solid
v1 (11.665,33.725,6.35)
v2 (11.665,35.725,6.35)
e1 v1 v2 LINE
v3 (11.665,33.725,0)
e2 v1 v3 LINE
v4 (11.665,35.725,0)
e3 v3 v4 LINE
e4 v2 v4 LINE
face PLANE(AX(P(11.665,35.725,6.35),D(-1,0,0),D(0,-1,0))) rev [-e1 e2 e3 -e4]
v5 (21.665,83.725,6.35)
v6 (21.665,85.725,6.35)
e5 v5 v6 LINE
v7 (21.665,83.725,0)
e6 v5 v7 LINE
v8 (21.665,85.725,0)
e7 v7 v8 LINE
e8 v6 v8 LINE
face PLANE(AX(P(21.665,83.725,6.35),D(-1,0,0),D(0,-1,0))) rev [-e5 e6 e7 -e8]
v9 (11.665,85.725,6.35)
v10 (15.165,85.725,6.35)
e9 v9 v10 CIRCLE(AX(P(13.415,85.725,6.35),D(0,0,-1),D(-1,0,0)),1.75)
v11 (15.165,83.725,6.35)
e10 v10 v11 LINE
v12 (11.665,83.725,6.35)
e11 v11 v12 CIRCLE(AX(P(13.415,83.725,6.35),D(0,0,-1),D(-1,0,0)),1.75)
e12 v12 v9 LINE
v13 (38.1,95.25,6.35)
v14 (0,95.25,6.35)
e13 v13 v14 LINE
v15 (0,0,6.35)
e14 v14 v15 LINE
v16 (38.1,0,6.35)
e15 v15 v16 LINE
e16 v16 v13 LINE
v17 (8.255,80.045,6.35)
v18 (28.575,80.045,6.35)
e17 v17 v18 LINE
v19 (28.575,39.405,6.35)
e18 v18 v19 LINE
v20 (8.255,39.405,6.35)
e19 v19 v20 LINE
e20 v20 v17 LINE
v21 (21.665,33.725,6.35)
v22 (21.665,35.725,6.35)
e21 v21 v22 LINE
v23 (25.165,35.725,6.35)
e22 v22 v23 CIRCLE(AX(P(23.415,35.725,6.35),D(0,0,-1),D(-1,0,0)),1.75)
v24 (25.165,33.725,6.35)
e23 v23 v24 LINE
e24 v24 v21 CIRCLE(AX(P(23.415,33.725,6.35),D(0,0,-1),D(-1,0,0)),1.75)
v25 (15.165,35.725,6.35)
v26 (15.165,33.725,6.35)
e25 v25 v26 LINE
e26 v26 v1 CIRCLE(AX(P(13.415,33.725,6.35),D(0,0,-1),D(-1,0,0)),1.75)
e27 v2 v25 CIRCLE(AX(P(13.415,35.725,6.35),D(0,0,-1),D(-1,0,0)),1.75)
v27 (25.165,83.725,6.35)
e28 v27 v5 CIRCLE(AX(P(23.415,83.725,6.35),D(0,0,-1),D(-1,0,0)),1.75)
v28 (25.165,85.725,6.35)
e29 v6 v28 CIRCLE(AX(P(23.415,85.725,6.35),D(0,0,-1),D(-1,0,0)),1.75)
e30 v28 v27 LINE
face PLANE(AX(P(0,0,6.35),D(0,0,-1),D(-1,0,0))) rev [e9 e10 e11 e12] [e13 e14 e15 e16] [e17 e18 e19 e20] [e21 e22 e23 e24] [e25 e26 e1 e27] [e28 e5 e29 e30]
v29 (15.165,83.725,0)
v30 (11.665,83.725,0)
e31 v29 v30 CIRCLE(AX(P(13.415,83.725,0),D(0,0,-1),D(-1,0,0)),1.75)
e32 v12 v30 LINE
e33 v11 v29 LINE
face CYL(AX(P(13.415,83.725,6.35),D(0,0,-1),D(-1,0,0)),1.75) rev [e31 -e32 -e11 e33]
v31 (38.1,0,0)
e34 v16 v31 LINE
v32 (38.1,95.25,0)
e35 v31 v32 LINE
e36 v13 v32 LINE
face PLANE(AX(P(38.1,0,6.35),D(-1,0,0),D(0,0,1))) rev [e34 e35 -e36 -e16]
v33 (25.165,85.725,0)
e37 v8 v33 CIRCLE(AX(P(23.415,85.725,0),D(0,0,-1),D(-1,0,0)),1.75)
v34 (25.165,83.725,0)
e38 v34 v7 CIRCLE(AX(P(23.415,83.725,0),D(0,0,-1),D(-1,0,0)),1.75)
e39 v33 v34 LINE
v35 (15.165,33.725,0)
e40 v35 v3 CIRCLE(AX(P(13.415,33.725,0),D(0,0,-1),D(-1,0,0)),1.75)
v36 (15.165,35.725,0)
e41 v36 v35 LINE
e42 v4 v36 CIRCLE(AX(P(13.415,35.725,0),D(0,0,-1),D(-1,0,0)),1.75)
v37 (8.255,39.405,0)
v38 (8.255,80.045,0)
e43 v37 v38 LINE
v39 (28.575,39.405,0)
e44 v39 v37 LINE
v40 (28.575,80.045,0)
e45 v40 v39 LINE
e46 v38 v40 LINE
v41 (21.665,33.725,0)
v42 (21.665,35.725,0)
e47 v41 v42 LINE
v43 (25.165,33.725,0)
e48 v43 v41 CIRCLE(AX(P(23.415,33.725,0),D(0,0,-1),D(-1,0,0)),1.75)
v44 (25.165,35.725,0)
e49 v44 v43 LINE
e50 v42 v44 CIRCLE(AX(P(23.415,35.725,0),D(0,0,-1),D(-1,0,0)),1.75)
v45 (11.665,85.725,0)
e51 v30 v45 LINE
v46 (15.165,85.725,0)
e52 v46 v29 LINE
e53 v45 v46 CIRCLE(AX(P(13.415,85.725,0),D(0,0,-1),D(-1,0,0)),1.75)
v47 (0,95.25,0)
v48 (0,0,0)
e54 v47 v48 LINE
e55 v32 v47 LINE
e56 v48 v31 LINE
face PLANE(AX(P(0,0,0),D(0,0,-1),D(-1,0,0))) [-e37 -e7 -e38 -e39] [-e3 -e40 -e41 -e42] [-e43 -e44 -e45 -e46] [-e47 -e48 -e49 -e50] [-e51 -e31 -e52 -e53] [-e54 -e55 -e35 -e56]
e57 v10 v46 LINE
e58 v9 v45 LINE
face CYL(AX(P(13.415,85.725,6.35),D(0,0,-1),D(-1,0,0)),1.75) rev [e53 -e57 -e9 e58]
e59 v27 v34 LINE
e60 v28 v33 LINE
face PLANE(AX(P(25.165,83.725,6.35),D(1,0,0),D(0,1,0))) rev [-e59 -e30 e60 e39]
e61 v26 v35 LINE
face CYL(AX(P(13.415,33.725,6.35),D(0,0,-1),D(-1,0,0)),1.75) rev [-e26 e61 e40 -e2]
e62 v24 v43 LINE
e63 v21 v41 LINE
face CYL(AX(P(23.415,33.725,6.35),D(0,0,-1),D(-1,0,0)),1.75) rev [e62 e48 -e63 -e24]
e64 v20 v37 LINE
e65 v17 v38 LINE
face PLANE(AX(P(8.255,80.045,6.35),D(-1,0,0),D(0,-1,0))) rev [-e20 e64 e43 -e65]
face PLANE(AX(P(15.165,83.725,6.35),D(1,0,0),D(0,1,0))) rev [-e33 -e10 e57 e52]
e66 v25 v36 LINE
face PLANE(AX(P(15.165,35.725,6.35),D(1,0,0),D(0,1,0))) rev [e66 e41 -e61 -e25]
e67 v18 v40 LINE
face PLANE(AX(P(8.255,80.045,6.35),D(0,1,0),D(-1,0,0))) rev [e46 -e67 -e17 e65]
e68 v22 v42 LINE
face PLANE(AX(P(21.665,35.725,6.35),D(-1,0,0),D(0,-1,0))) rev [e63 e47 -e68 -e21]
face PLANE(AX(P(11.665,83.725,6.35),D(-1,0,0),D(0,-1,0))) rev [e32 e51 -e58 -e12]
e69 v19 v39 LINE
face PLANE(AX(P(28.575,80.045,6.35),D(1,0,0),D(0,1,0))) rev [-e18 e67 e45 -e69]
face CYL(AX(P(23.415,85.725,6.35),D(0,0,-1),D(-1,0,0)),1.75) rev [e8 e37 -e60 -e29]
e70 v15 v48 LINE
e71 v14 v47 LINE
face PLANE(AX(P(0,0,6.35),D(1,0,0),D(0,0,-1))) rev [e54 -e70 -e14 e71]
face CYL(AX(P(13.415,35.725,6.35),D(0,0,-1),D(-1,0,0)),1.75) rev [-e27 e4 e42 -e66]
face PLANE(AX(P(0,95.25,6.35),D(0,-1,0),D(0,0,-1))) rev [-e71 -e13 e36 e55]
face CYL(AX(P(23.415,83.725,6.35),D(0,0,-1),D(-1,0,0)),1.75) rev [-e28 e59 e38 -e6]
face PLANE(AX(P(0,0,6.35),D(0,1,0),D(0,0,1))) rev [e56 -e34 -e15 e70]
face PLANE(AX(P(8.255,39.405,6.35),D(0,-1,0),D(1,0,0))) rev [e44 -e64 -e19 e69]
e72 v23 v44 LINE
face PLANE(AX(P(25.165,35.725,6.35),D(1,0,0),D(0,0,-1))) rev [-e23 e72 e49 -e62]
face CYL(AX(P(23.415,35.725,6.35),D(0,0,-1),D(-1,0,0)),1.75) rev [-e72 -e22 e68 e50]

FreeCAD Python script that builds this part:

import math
import FreeCAD as App
import Part
import Sketcher

V = App.Vector
Q = App.Units.Quantity

doc = App.newDocument("Part")
params = doc.addObject("Spreadsheet::Sheet", "Params")
for row, (alias, value) in enumerate([
    ("sketch1_width", "1.5 in"),
    ("sketch1_height", "3.75 in"),
    ("pad1_length", "0.25 in"),
    ("sketch2_width", "0.8 in"),
    ("sketch2_height", "1.6 in"),
    ("pocket1_length", "0.25 in"),
], start=1):
    params.set(f"A{row}", alias)
    params.set(f"B{row}", "=" + value)
    params.setAlias(f"B{row}", alias)

body = doc.addObject("PartDesign::Body", "Body")

sketch1 = body.newObject("Sketcher::SketchObject", "Sketch")
sketch1.AttachmentSupport = (doc.getObject("XY_Plane"), [""])
sketch1.MapMode = "FlatFace"
sketch1.addGeometry([
    Part.LineSegment(V(0, 95, 0), V(0, 0, 0)),
    Part.LineSegment(V(0, 0, 0), V(38, 0, 0)),
    Part.LineSegment(V(38, 0, 0), V(38, 95, 0)),
    Part.LineSegment(V(38, 95, 0), V(0, 95, 0)),
], False)
sketch1.addConstraint([
    Sketcher.Constraint("Coincident", 0, 2, 1, 1),
    Sketcher.Constraint("Coincident", 1, 2, 2, 1),
    Sketcher.Constraint("Coincident", 2, 2, 3, 1),
    Sketcher.Constraint("Coincident", 3, 2, 0, 1),
    Sketcher.Constraint("Vertical", 0),
    Sketcher.Constraint("Horizontal", 1),
    Sketcher.Constraint("Vertical", 2),
    Sketcher.Constraint("Horizontal", 3),
    Sketcher.Constraint("Coincident", 0, 2, -1, 1),
    Sketcher.Constraint("DistanceX", 1, 1, 1, 2, Q("1.5 in")),
    Sketcher.Constraint("DistanceY", 0, 2, 0, 1, Q("3.75 in")),
])
sketch1.setExpression("Constraints[9]", "Params.sketch1_width")
sketch1.setExpression("Constraints[10]", "Params.sketch1_height")
pad1 = body.newObject("PartDesign::Pad", "Pad")
pad1.Profile = sketch1
pad1.setExpression("Length", "Params.pad1_length")

sketch2 = body.newObject("Sketcher::SketchObject", "Sketch001")
sketch2.AttachmentSupport = (doc.getObject("XY_Plane"), [""])
sketch2.MapMode = "FlatFace"
sketch2.addGeometry([
    Part.LineSegment(V(28.6, 80, 0), V(28.6, 39.4, 0)),
    Part.LineSegment(V(28.6, 39.4, 0), V(8.3, 39.4, 0)),
    Part.LineSegment(V(8.3, 39.4, 0), V(8.3, 80, 0)),
    Part.LineSegment(V(8.3, 80, 0), V(28.6, 80, 0)),
    Part.LineSegment(V(25.2, 85.7, 0), V(25.2, 83.7, 0)),
    Part.ArcOfCircle(Part.Circle(V(23.4, 83.7, 0), V(0, 0, 1), 1.8), math.radians(180), math.radians(360)),
    Part.LineSegment(V(21.7, 83.7, 0), V(21.7, 85.7, 0)),
    Part.ArcOfCircle(Part.Circle(V(23.4, 85.7, 0), V(0, 0, 1), 1.8), math.radians(0), math.radians(180)),
    Part.LineSegment(V(15.2, 85.7, 0), V(15.2, 83.7, 0)),
    Part.ArcOfCircle(Part.Circle(V(13.4, 83.7, 0), V(0, 0, 1), 1.8), math.radians(180), math.radians(360)),
    Part.LineSegment(V(11.7, 83.7, 0), V(11.7, 85.7, 0)),
    Part.ArcOfCircle(Part.Circle(V(13.4, 85.7, 0), V(0, 0, 1), 1.8), math.radians(0), math.radians(180)),
    Part.LineSegment(V(21.7, 33.7, 0), V(21.7, 35.7, 0)),
    Part.ArcOfCircle(Part.Circle(V(23.4, 35.7, 0), V(0, 0, 1), 1.8), math.radians(0), math.radians(180)),
    Part.LineSegment(V(25.2, 35.7, 0), V(25.2, 33.7, 0)),
    Part.ArcOfCircle(Part.Circle(V(23.4, 33.7, 0), V(0, 0, 1), 1.8), math.radians(180), math.radians(360)),
    Part.LineSegment(V(11.7, 33.7, 0), V(11.7, 35.7, 0)),
    Part.ArcOfCircle(Part.Circle(V(13.4, 35.7, 0), V(0, 0, 1), 1.8), math.radians(0), math.radians(180)),
    Part.LineSegment(V(15.2, 35.7, 0), V(15.2, 33.7, 0)),
    Part.ArcOfCircle(Part.Circle(V(13.4, 33.7, 0), V(0, 0, 1), 1.8), math.radians(180), math.radians(360)),
], False)
sketch2.addConstraint([
    Sketcher.Constraint("Coincident", 0, 2, 1, 1),
    Sketcher.Constraint("Coincident", 1, 2, 2, 1),
    Sketcher.Constraint("Coincident", 2, 2, 3, 1),
    Sketcher.Constraint("Coincident", 3, 2, 0, 1),
    Sketcher.Constraint("Tangent", 4, 2, 5, 2),
    Sketcher.Constraint("Tangent", 5, 1, 6, 1),
    Sketcher.Constraint("Tangent", 6, 2, 7, 2),
    Sketcher.Constraint("Tangent", 7, 1, 4, 1),
    Sketcher.Constraint("Tangent", 8, 2, 9, 2),
    Sketcher.Constraint("Tangent", 9, 1, 10, 1),
    Sketcher.Constraint("Tangent", 10, 2, 11, 2),
    Sketcher.Constraint("Tangent", 11, 1, 8, 1),
    Sketcher.Constraint("Tangent", 12, 2, 13, 2),
    Sketcher.Constraint("Tangent", 13, 1, 14, 1),
    Sketcher.Constraint("Tangent", 14, 2, 15, 2),
    Sketcher.Constraint("Tangent", 15, 1, 12, 1),
    Sketcher.Constraint("Tangent", 16, 2, 17, 2),
    Sketcher.Constraint("Tangent", 17, 1, 18, 1),
    Sketcher.Constraint("Tangent", 18, 2, 19, 2),
    Sketcher.Constraint("Tangent", 19, 1, 16, 1),
    Sketcher.Constraint("Vertical", 0),
    Sketcher.Constraint("Horizontal", 1),
    Sketcher.Constraint("Vertical", 2),
    Sketcher.Constraint("Horizontal", 3),
    Sketcher.Constraint("Vertical", 4),
    Sketcher.Constraint("Vertical", 6),
    Sketcher.Constraint("Vertical", 8),
    Sketcher.Constraint("Vertical", 10),
    Sketcher.Constraint("Vertical", 12),
    Sketcher.Constraint("Vertical", 14),
    Sketcher.Constraint("Vertical", 16),
    Sketcher.Constraint("Vertical", 18),
    Sketcher.Constraint("Equal", 7, 9),
    Sketcher.Constraint("Equal", 11, 13),
    Sketcher.Constraint("Equal", 15, 17),
    Sketcher.Constraint("Horizontal", 5, 3, 9, 3),
    Sketcher.Constraint("Horizontal", 7, 3, 11, 3),
    Sketcher.Constraint("Horizontal", 13, 3, 17, 3),
    Sketcher.Constraint("Horizontal", 15, 3, 19, 3),
    Sketcher.Constraint("Vertical", 7, 3, 13, 3),
    Sketcher.Constraint("Vertical", 11, 3, 17, 3),
    Sketcher.Constraint("Equal", 10, 12),
    Sketcher.Constraint("DistanceX", 1, 2, 1, 1, Q("0.8 in")),
    Sketcher.Constraint("DistanceY", 0, 2, 0, 1, Q("1.6 in")),
    Sketcher.Constraint("Radius", 5, Q("1.75 mm")),
    Sketcher.Constraint("DistanceY", -1, 1, 7, 3, Q("3.375 in")),
    Sketcher.Constraint("DistanceX", -1, 1, 0, 2, Q("1.125 in")),
    Sketcher.Constraint("DistanceY", 4, 2, 4, 1, Q("2 mm")),
    Sketcher.Constraint("DistanceX", -1, 1, 5, 3, Q("23.415 mm")),
    Sketcher.Constraint("DistanceX", -1, 1, 9, 3, Q("13.415 mm")),
    Sketcher.Constraint("DistanceY", -1, 1, 13, 3, Q("35.725 mm")),
    Sketcher.Constraint("DistanceY", -1, 1, 0, 2, Q("39.405 mm")),
])
sketch2.setExpression("Constraints[42]", "Params.sketch2_width")
sketch2.setExpression("Constraints[43]", "Params.sketch2_height")
pocket1 = body.newObject("PartDesign::Pocket", "Pocket")
pocket1.Profile = sketch2
pocket1.setExpression("Length", "Params.pocket1_length")
pocket1.Reversed = True

doc.recompute()
